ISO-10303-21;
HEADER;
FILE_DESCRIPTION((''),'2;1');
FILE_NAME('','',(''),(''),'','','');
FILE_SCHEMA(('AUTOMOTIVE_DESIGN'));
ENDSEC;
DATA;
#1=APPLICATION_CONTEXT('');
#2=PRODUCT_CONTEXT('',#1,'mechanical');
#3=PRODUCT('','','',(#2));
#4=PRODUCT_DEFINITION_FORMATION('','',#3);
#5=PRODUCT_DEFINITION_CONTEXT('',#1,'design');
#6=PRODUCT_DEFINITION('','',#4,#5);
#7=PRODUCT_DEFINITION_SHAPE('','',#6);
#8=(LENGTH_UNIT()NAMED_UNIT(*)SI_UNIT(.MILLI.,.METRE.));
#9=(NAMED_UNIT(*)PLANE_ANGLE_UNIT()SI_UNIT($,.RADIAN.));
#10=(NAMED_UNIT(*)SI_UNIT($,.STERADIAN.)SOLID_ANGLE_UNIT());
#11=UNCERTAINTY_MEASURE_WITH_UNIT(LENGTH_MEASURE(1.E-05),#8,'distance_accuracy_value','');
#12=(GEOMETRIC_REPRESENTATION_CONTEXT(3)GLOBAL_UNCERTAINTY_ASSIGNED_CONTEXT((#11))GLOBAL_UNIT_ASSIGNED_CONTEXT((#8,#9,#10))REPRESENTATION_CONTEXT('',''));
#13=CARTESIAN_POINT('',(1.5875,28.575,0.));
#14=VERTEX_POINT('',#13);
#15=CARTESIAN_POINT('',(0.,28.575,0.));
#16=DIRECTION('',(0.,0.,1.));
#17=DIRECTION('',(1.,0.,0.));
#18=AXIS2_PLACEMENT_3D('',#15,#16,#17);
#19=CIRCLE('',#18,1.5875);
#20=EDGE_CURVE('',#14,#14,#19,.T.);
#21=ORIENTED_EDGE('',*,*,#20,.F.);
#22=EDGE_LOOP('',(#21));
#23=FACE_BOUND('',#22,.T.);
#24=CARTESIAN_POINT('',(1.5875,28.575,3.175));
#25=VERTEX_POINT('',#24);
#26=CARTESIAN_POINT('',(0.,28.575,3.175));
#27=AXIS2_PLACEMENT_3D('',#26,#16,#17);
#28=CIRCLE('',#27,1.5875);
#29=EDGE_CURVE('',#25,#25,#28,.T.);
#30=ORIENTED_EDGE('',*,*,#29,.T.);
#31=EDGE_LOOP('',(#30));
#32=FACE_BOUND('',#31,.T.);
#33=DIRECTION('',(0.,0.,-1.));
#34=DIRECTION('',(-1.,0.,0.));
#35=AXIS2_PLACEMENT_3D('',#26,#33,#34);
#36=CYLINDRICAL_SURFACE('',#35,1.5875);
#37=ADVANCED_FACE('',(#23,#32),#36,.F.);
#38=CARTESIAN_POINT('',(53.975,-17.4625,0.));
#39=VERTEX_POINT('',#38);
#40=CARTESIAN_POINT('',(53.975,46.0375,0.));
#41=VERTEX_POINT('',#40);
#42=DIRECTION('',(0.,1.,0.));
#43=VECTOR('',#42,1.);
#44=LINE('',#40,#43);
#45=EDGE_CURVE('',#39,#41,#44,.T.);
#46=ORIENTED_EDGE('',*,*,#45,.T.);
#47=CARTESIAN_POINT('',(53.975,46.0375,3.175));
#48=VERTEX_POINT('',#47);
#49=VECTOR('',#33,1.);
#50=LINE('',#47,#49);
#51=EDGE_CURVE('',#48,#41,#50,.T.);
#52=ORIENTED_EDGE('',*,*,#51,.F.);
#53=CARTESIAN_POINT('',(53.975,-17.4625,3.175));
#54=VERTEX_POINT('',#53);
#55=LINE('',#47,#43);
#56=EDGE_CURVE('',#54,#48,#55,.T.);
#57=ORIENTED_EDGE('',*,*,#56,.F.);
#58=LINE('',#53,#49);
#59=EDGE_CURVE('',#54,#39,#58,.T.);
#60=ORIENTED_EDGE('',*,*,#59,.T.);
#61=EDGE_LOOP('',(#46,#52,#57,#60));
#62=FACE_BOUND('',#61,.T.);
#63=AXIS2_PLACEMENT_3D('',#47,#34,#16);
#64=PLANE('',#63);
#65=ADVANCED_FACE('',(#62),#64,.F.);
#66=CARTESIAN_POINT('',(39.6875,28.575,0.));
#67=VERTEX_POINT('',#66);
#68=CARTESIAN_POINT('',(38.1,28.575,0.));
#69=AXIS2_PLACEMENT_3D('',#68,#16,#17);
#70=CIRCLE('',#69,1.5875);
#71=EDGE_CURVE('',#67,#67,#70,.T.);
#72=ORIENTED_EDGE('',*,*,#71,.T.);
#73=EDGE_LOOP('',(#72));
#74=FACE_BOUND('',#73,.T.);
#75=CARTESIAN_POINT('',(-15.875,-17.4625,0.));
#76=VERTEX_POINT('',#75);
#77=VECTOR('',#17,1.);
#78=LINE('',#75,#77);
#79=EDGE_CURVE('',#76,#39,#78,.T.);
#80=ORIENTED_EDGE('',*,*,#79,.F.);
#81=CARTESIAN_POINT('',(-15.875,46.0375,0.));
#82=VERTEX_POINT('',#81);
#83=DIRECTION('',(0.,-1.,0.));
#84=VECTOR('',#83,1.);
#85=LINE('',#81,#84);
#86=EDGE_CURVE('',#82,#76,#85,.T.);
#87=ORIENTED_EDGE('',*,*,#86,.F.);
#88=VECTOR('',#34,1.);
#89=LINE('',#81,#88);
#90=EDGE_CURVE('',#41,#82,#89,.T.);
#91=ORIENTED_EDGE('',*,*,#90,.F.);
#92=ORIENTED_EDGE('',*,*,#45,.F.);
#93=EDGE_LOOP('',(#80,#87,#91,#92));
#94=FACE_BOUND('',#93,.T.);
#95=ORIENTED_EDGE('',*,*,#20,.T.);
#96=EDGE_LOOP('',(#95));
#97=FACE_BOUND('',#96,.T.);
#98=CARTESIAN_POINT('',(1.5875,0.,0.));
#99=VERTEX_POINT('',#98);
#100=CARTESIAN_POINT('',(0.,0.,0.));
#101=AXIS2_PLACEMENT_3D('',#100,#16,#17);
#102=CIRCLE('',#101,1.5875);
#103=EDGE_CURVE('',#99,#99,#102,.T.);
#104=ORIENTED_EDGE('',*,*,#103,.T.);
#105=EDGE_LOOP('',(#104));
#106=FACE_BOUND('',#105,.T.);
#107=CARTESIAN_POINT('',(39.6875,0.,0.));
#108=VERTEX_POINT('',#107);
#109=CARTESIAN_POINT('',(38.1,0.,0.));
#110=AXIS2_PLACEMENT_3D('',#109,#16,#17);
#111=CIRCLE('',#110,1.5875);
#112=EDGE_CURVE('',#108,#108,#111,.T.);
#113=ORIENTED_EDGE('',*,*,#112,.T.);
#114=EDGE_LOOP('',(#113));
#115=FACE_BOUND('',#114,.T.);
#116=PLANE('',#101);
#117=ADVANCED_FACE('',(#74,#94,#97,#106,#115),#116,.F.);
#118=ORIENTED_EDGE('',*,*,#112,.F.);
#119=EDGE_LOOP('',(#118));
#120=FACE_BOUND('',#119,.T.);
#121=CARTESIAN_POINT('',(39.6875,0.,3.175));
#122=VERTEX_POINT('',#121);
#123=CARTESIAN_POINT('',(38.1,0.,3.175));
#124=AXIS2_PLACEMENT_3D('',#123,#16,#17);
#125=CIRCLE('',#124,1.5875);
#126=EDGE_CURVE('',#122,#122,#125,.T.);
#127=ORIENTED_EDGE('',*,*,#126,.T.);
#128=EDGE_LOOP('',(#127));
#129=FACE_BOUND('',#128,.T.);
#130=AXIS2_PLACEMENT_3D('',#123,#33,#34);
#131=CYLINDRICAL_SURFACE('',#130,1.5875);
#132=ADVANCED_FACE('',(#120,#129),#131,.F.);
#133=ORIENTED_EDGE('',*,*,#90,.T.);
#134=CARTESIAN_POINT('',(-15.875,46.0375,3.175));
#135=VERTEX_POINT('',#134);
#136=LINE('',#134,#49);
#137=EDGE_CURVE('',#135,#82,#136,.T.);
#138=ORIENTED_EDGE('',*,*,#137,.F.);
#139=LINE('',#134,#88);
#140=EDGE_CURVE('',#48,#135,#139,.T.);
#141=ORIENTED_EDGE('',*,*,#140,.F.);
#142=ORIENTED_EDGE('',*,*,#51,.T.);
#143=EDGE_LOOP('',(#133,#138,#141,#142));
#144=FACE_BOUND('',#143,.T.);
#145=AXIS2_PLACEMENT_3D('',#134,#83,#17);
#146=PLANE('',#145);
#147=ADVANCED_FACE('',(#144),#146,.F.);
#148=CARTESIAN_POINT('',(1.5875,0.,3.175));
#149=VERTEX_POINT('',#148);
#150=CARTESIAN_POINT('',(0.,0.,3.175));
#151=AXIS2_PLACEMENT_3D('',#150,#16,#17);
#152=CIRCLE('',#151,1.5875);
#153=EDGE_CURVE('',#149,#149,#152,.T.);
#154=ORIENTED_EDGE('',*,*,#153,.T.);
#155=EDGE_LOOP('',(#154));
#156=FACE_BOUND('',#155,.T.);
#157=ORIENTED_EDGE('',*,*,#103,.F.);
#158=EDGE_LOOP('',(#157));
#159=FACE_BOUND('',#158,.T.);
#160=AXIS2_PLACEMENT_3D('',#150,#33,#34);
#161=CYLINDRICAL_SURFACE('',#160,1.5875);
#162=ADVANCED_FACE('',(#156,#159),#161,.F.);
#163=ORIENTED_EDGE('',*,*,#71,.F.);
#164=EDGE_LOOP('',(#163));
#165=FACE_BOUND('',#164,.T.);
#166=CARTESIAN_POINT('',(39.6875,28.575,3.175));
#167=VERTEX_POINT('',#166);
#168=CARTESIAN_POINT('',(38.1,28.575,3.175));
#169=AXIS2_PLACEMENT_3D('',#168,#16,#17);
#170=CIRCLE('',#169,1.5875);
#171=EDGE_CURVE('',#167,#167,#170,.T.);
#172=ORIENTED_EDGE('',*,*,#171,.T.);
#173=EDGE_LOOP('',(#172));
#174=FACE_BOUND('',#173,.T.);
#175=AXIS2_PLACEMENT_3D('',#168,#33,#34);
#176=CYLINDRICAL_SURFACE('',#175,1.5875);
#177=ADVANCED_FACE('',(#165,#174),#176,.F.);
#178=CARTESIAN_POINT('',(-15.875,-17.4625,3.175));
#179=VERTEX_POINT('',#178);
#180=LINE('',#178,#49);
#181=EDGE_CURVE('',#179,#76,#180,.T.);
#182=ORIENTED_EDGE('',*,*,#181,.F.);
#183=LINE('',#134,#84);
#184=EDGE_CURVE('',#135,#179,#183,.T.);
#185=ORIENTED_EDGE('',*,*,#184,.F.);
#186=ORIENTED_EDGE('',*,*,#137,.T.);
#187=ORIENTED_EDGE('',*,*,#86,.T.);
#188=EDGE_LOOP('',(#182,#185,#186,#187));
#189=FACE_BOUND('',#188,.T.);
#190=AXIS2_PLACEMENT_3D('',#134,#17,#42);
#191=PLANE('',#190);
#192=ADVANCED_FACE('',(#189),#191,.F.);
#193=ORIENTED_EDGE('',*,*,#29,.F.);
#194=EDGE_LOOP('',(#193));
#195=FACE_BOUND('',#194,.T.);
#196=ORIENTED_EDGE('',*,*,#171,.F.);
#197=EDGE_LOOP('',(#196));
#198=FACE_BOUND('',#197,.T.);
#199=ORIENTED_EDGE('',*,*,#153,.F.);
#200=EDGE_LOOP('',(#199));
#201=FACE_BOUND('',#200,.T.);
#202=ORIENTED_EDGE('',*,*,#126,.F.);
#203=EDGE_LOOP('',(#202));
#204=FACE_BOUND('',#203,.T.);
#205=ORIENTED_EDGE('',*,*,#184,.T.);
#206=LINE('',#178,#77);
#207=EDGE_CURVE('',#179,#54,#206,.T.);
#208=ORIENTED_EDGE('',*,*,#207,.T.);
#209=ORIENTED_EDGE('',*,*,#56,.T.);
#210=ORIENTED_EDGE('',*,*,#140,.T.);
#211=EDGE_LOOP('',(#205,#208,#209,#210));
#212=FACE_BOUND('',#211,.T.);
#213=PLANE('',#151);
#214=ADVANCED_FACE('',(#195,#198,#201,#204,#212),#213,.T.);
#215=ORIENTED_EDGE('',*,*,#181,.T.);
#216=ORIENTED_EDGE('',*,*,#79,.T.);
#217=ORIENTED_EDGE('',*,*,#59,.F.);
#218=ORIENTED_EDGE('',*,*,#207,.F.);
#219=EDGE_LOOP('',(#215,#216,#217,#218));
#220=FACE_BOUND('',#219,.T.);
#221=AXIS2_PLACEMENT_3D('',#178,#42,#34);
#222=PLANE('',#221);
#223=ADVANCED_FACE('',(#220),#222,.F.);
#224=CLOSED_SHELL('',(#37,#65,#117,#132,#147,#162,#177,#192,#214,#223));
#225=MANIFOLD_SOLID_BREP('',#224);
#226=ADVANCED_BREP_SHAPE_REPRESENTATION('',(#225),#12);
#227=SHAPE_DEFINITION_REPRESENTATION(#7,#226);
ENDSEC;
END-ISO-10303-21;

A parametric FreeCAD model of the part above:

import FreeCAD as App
import Part
import Sketcher
Q = App.Units.Quantity


def add_polygon(sketch, points):
    """Adds a closed chain of lines whose ends are joined by coincident constraints."""
    first, n = sketch.GeometryCount, len(points)
    for a, b in zip(points, points[1:] + points[:1]):
        sketch.addGeometry(Part.LineSegment(App.Vector(*a, 0), App.Vector(*b, 0)), False)
    for i in range(n):
        sketch.addConstraint(Sketcher.Constraint("Coincident", first + i, 2, first + (i + 1) % n, 1))

doc = App.newDocument("Part")
body = doc.addObject("PartDesign::Body", "Body")

sketch1 = body.newObject("Sketcher::SketchObject", "Sketch")
sketch1.AttachmentSupport = (doc.getObject("XY_Plane"), [""])
sketch1.MapMode = "FlatFace"
add_polygon(sketch1, [(-15.875, 46.0375), (-15.875, -17.4625), (53.975, -17.4625), (53.975, 46.0375)])
sketch1.addGeometry(Part.Circle(App.Vector(0, 0, 0), App.Vector(0, 0, 1), 1.5875), False)
sketch1.addGeometry(Part.Circle(App.Vector(38.1, 0, 0), App.Vector(0, 0, 1), 1.5875), False)
sketch1.addGeometry(Part.Circle(App.Vector(0, 28.575, 0), App.Vector(0, 0, 1), 1.5875), False)
sketch1.addGeometry(Part.Circle(App.Vector(38.1, 28.575, 0), App.Vector(0, 0, 1), 1.5875), False)
sketch1.addConstraint([
    Sketcher.Constraint("Vertical", 0),
    Sketcher.Constraint("Horizontal", 1),
    Sketcher.Constraint("Vertical", 2),
    Sketcher.Constraint("Horizontal", 3),
    Sketcher.Constraint("Coincident", 4, 3, -1, 1),
    Sketcher.Constraint("Equal", 4, 5),
    Sketcher.Constraint("Equal", 5, 6),
    Sketcher.Constraint("Equal", 6, 7),
    Sketcher.Constraint("PointOnObject", 5, 3, -1),
    Sketcher.Constraint("PointOnObject", 6, 3, -2),
    Sketcher.Constraint("Horizontal", 6, 3, 7, 3),
    Sketcher.Constraint("Vertical", 5, 3, 7, 3),
    Sketcher.Constraint("Diameter", 4, Q("0.125 in")),
    Sketcher.Constraint("DistanceY", 0, 2, 0, 1, Q("2.5 in")),
    Sketcher.Constraint("DistanceX", 1, 1, 1, 2, Q("2.75 in")),
    Sketcher.Constraint("DistanceX", -1, 1, 5, 3, Q("1.5 in")),
    Sketcher.Constraint("DistanceY", -1, 1, 6, 3, Q("1.125 in")),
    Sketcher.Constraint("DistanceX", 0, 2, -1, 1, Q("0.625 in")),
    Sketcher.Constraint("DistanceY", 0, 2, -1, 1, Q("0.6875 in")),
])
pad1 = body.newObject("PartDesign::Pad", "Pad")
pad1.Profile = sketch1
pad1.Length = Q("0.125 in")

doc.recompute()
